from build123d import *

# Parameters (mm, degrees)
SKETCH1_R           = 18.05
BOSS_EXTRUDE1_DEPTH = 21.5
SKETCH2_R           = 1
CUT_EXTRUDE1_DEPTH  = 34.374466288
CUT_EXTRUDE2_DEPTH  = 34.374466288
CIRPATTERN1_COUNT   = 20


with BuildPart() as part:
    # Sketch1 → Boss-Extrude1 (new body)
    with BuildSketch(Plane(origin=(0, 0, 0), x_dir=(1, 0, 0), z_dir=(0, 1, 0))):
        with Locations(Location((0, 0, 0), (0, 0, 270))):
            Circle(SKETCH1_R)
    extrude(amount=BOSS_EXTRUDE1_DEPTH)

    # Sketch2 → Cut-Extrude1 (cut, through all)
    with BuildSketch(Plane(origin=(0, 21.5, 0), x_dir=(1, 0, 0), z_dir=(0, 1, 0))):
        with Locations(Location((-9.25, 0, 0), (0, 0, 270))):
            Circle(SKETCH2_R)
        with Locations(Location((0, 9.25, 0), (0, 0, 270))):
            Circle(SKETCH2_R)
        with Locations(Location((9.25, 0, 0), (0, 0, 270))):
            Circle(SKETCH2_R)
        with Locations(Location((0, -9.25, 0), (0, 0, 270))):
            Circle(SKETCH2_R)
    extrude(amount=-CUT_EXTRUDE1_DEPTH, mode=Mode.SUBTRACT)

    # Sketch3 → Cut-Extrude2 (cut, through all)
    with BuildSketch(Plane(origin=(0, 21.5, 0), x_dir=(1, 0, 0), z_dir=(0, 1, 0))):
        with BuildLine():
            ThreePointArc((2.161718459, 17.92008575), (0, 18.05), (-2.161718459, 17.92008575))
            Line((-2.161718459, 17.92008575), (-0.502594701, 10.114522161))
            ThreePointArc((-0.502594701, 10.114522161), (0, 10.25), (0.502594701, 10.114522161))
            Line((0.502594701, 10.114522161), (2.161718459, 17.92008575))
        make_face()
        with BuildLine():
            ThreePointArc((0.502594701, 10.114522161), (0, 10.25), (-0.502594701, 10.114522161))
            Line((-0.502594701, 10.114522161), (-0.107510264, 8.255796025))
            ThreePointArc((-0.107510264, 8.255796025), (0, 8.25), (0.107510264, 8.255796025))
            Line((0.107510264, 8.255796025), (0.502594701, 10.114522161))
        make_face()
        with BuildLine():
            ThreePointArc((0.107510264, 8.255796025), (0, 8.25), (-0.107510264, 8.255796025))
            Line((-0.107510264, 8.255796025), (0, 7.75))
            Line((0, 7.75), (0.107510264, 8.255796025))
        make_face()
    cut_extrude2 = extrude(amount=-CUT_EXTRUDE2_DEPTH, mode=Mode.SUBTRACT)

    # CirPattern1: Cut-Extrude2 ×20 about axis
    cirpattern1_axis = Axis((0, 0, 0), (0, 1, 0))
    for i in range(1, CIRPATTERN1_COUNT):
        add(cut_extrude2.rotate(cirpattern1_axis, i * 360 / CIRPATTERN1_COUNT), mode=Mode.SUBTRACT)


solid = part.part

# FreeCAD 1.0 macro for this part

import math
import FreeCAD as App
import Part
import Sketcher
from FreeCAD import Vector
Q = App.Units.Quantity

doc = App.newDocument("Part")
body = doc.addObject("PartDesign::Body", "Body")

# Sketch on XZ plane
sketch1 = body.newObject("Sketcher::SketchObject", "Sketch")
sketch1.AttachmentSupport = (doc.getObject("XZ_Plane"), [""])
sketch1.MapMode = "FlatFace"
sketch1.addGeometry(Part.Circle(Vector(0, 0, 0), Vector(0, 0, 1), 18.05), False)
sketch1.addConstraint([
    Sketcher.Constraint("Coincident", 0, 3, -1, 1),
    Sketcher.Constraint("Diameter", 0, Q("36.1 mm")),
])
pad1 = body.newObject("PartDesign::Pad", "Pad")
pad1.Profile = sketch1
pad1.Length = 21.5
pad1.Reversed = True

# Sketch on XZ plane
sketch2 = body.newObject("Sketcher::SketchObject", "Sketch001")
sketch2.AttachmentSupport = (doc.getObject("XZ_Plane"), [""])
sketch2.MapMode = "FlatFace"
sketch2.AttachmentOffset = App.Placement(Vector(0, 0, -21.5), App.Rotation())
sketch2.addGeometry([
    Part.Circle(Vector(-9.25, 0, 0), Vector(0, 0, 1), 1),
    Part.Circle(Vector(0, -9.25, 0), Vector(0, 0, 1), 1),
    Part.Circle(Vector(9.25, 0, 0), Vector(0, 0, 1), 1),
    Part.Circle(Vector(0, 9.25, 0), Vector(0, 0, 1), 1),
], False)
sketch2.addConstraint([
    Sketcher.Constraint("Equal", 0, 1),
    Sketcher.Constraint("Equal", 1, 2),
    Sketcher.Constraint("Equal", 2, 3),
    Sketcher.Constraint("Symmetric", 0, 3, 2, 3, -1, 1),
    Sketcher.Constraint("Symmetric", 1, 3, 3, 3, -1, 1),
    Sketcher.Constraint("PointOnObject", 0, 3, -1),
    Sketcher.Constraint("PointOnObject", 1, 3, -2),
    Sketcher.Constraint("Diameter", 0, Q("2 mm")),
    Sketcher.Constraint("DistanceX", 0, 3, 2, 3, Q("18.5 mm")),
    Sketcher.Constraint("DistanceY", 1, 3, 3, 3, Q("18.5 mm")),
])
pocket1 = body.newObject("PartDesign::Pocket", "Pocket")
pocket1.Profile = sketch2
pocket1.Type = "ThroughAll"
pocket1.Reversed = True

# Sketch on XZ plane
sketch3 = body.newObject("Sketcher::SketchObject", "Sketch002")
sketch3.AttachmentSupport = (doc.getObject("XZ_Plane"), [""])
sketch3.MapMode = "FlatFace"
sketch3.AttachmentOffset = App.Placement(Vector(0, 0, -21.5), App.Rotation())
sketch3.addGeometry([
    Part.LineSegment(Vector(0.10751, -8.255796, 0), Vector(0.502595, -10.114522, 0)),  # 0
    Part.LineSegment(Vector(0.502595, -10.114522, 0), Vector(2.161718, -17.920086, 0)),  # 1
    Part.ArcOfCircle(Part.Circle(Vector(0, 0, 0), Vector(0, 0, 1), 18.05), math.radians(-96.878413), math.radians(-83.121587)),  # 2
    Part.LineSegment(Vector(-2.161718, -17.920086, 0), Vector(-0.502595, -10.114522, 0)),  # 3
    Part.LineSegment(Vector(-0.502595, -10.114522, 0), Vector(-0.10751, -8.255796, 0)),  # 4
    Part.LineSegment(Vector(-0.10751, -8.255796, 0), Vector(0, -7.75, 0)),  # 5
    Part.LineSegment(Vector(0, -7.75, 0), Vector(0.10751, -8.255796, 0)),  # 6
], False)
sketch3.addConstraint([
    Sketcher.Constraint("Coincident", 0, 2, 1, 1),
    Sketcher.Constraint("Coincident", 1, 2, 2, 2),
    Sketcher.Constraint("Coincident", 2, 1, 3, 1),
    Sketcher.Constraint("Coincident", 3, 2, 4, 1),
    Sketcher.Constraint("Coincident", 4, 2, 5, 1),
    Sketcher.Constraint("Coincident", 5, 2, 6, 1),
    Sketcher.Constraint("Coincident", 6, 2, 0, 1),
    Sketcher.Constraint("Coincident", 2, 3, -1, 1),
    Sketcher.Constraint("Symmetric", 0, 2, 3, 2, -2),
    Sketcher.Constraint("Symmetric", 4, 2, 6, 2, -2),
    Sketcher.Constraint("PointOnObject", 5, 2, -2),
    Sketcher.Constraint("Parallel", 0, 1),
    Sketcher.Constraint("Parallel", 3, 4),
    Sketcher.Constraint("Parallel", 4, 5),
    Sketcher.Constraint("Angle", 0, Q("-78 deg")),
    Sketcher.Constraint("Radius", 2, Q("18.05 mm")),
    Sketcher.Constraint("DistanceY", 5, 2, -1, 1, Q("7.75 mm")),
    Sketcher.Constraint("Distance", 0, Q("1.900251 mm")),
    Sketcher.Constraint("DistanceX", 4, 2, -1, 1, Q("0.10751 mm")),
])
pocket2 = body.newObject("PartDesign::Pocket", "Pocket001")
pocket2.Profile = sketch3
pocket2.Type = "ThroughAll"
pocket2.Reversed = True
doc.recompute()

polarpattern = body.newObject("PartDesign::PolarPattern", "PolarPattern")
polarpattern.Originals = [pocket2]
polarpattern.Axis = (doc.getObject("Y_Axis"), [""])
polarpattern.Angle = 360
polarpattern.Occurrences = 20
body.Tip = polarpattern

doc.recompute()
